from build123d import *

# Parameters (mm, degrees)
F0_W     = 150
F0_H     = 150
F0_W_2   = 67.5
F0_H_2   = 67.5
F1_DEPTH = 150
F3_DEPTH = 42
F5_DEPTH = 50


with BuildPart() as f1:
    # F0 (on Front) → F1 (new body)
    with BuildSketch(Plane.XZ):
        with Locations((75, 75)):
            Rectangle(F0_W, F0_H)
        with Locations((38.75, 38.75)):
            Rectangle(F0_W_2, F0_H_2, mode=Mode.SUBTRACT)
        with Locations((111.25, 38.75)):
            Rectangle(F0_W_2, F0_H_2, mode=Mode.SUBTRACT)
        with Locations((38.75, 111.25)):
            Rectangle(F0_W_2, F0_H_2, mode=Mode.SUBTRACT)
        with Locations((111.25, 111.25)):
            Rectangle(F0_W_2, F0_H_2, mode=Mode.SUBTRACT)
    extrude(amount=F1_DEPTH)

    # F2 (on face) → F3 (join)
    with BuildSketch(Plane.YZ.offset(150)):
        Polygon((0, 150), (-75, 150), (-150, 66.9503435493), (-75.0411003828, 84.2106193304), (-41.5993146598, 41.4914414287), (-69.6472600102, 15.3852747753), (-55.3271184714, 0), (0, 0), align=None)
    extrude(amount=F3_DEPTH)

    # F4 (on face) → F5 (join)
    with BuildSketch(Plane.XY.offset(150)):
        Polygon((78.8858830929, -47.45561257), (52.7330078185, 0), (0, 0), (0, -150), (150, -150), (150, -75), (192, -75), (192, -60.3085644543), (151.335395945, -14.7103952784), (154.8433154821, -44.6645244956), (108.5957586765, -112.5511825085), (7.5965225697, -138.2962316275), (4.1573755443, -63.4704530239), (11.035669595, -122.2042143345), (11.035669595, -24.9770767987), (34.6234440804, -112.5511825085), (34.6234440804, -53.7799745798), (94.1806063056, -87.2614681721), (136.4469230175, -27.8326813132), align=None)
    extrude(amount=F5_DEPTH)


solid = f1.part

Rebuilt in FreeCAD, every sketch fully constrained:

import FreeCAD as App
import Part
import Sketcher
from FreeCAD import Vector
Q = App.Units.Quantity


def add_polygon(sketch, points):
    """Adds a closed chain of lines whose ends are joined by coincident constraints."""
    first, n = sketch.GeometryCount, len(points)
    for a, b in zip(points, points[1:] + points[:1]):
        sketch.addGeometry(Part.LineSegment(App.Vector(*a, 0), App.Vector(*b, 0)), False)
    for i in range(n):
        sketch.addConstraint(Sketcher.Constraint("Coincident", first + i, 2, first + (i + 1) % n, 1))

doc = App.newDocument("Part")
body = doc.addObject("PartDesign::Body", "Body")

# Sketch on XZ plane
sketch1 = body.newObject("Sketcher::SketchObject", "Sketch")
sketch1.AttachmentSupport = (doc.getObject("XZ_Plane"), [""])
sketch1.MapMode = "FlatFace"
add_polygon(sketch1, [(0, 150), (0, 0), (150, 0), (150, 150)])  # lines 0-3
add_polygon(sketch1, [(72, 5), (5, 5), (5, 72), (72, 72)])  # lines 4-7
add_polygon(sketch1, [(145, 5), (78, 5), (78, 72), (145, 72)])  # lines 8-11
add_polygon(sketch1, [(72, 78), (5, 78), (5, 145), (72, 145)])  # lines 12-15
add_polygon(sketch1, [(145, 78), (78, 78), (78, 145), (145, 145)])  # lines 16-19
sketch1.addConstraint(Sketcher.Constraint("Vertical", 0))
sketch1.addConstraint(Sketcher.Constraint("Horizontal", 1))
sketch1.addConstraint(Sketcher.Constraint("Vertical", 2))
sketch1.addConstraint(Sketcher.Constraint("Horizontal", 3))
sketch1.addConstraint(Sketcher.Constraint("Horizontal", 4))
sketch1.addConstraint(Sketcher.Constraint("Vertical", 5))
sketch1.addConstraint(Sketcher.Constraint("Horizontal", 6))
sketch1.addConstraint(Sketcher.Constraint("Vertical", 7))
sketch1.addConstraint(Sketcher.Constraint("Horizontal", 8))
sketch1.addConstraint(Sketcher.Constraint("Vertical", 9))
sketch1.addConstraint(Sketcher.Constraint("Horizontal", 10))
sketch1.addConstraint(Sketcher.Constraint("Vertical", 11))
sketch1.addConstraint(Sketcher.Constraint("Horizontal", 12))
sketch1.addConstraint(Sketcher.Constraint("Vertical", 13))
sketch1.addConstraint(Sketcher.Constraint("Horizontal", 14))
sketch1.addConstraint(Sketcher.Constraint("Vertical", 15))
sketch1.addConstraint(Sketcher.Constraint("Horizontal", 16))
sketch1.addConstraint(Sketcher.Constraint("Vertical", 17))
sketch1.addConstraint(Sketcher.Constraint("Horizontal", 18))
sketch1.addConstraint(Sketcher.Constraint("Vertical", 19))
sketch1.addConstraint(Sketcher.Constraint("Coincident", 0, 2, -1, 1))
sketch1.addConstraint(Sketcher.Constraint("Horizontal", 7, 2, 8, 2))
sketch1.addConstraint(Sketcher.Constraint("Horizontal", 6, 2, 9, 2))
sketch1.addConstraint(Sketcher.Constraint("Horizontal", 15, 2, 16, 2))
sketch1.addConstraint(Sketcher.Constraint("Horizontal", 14, 2, 17, 2))
sketch1.addConstraint(Sketcher.Constraint("Vertical", 5, 2, 12, 2))
sketch1.addConstraint(Sketcher.Constraint("Vertical", 7, 2, 14, 2))
sketch1.addConstraint(Sketcher.Constraint("Vertical", 9, 2, 16, 2))
sketch1.addConstraint(Sketcher.Constraint("Vertical", 11, 2, 18, 2))
sketch1.addConstraint(Sketcher.Constraint("Equal", 6, 8))
sketch1.addConstraint(Sketcher.Constraint("Equal", 3, 0))
sketch1.addConstraint(Sketcher.Constraint("Equal", 18, 5))
sketch1.addConstraint(Sketcher.Constraint("Equal", 11, 13))
sketch1.addConstraint(Sketcher.Constraint("DistanceX", 1, 1, 1, 2, Q("150 mm")))
sketch1.addConstraint(Sketcher.Constraint("DistanceX", 4, 2, 4, 1, Q("67.5 mm")))
sketch1.addConstraint(Sketcher.Constraint("DistanceX", -1, 1, 4, 2, Q("5 mm")))
sketch1.addConstraint(Sketcher.Constraint("DistanceY", -1, 1, 4, 2, Q("5 mm")))
sketch1.addConstraint(Sketcher.Constraint("DistanceX", -1, 1, 10, 2, Q("145 mm")))
sketch1.addConstraint(Sketcher.Constraint("DistanceY", -1, 1, 13, 2, Q("145 mm")))
pad1 = body.newObject("PartDesign::Pad", "Pad")
pad1.Profile = sketch1
pad1.Length = 150

# Sketch on YZ plane
sketch2 = body.newObject("Sketcher::SketchObject", "Sketch001")
sketch2.AttachmentSupport = (doc.getObject("YZ_Plane"), [""])
sketch2.MapMode = "FlatFace"
sketch2.AttachmentOffset = App.Placement(Vector(0, 0, 150), App.Rotation())
add_polygon(sketch2, [(0, 150), (-75, 150), (-150, 67), (-75, 84), (-42, 41), (-70, 15), (-55, 0), (0, 0)])  # lines 0-7
sketch2.addConstraint(Sketcher.Constraint("Horizontal", 0))
sketch2.addConstraint(Sketcher.Constraint("Horizontal", 6))
sketch2.addConstraint(Sketcher.Constraint("Vertical", 7))
sketch2.addConstraint(Sketcher.Constraint("Coincident", 6, 2, -1, 1))
sketch2.addConstraint(Sketcher.Constraint("Perpendicular", 4, 5))
sketch2.addConstraint(Sketcher.Constraint("DistanceX", 0, 2, 0, 1, Q("75 mm")))
sketch2.addConstraint(Sketcher.Constraint("DistanceY", 7, 1, 7, 2, Q("150 mm")))
sketch2.addConstraint(Sketcher.Constraint("DistanceX", 1, 2, -1, 1, Q("150 mm")))
sketch2.addConstraint(Sketcher.Constraint("Distance", 5, Q("21.0184 mm")))
sketch2.addConstraint(Sketcher.Constraint("DistanceX", 6, 1, 6, 2, Q("55.327118 mm")))
sketch2.addConstraint(Sketcher.Constraint("DistanceX", 2, 2, -1, 1, Q("75.0411 mm")))
sketch2.addConstraint(Sketcher.Constraint("Distance", 1, Q("111.902839 mm")))
sketch2.addConstraint(Sketcher.Constraint("Distance", 4, Q("38.317348 mm")))
sketch2.addConstraint(Sketcher.Constraint("DistanceY", -1, 1, 2, 2, Q("84.210619 mm")))
sketch2.addConstraint(Sketcher.Constraint("DistanceY", -1, 1, 3, 2, Q("41.491441 mm")))
pad2 = body.newObject("PartDesign::Pad", "Pad001")
pad2.Profile = sketch2
pad2.Length = 42

# Sketch on XY plane
sketch3 = body.newObject("Sketcher::SketchObject", "Sketch002")
sketch3.AttachmentSupport = (doc.getObject("XY_Plane"), [""])
sketch3.MapMode = "FlatFace"
sketch3.AttachmentOffset = App.Placement(Vector(0, 0, 150), App.Rotation())
add_polygon(sketch3, [(79, -47), (53, 0), (0, 0), (0, -150), (150, -150), (150, -75), (192, -75), (192, -60), (151, -15), (155, -45), (109, -113), (8, -138), (4, -63), (11, -122), (11, -25), (35, -113), (35, -54), (94, -87), (136, -28)])  # lines 0-18
sketch3.addConstraint(Sketcher.Constraint("Horizontal", 1))
sketch3.addConstraint(Sketcher.Constraint("Vertical", 2))
sketch3.addConstraint(Sketcher.Constraint("Horizontal", 3))
sketch3.addConstraint(Sketcher.Constraint("Vertical", 4))
sketch3.addConstraint(Sketcher.Constraint("Horizontal", 5))
sketch3.addConstraint(Sketcher.Constraint("Vertical", 6))
sketch3.addConstraint(Sketcher.Constraint("Vertical", 13))
sketch3.addConstraint(Sketcher.Constraint("Vertical", 15))
sketch3.addConstraint(Sketcher.Constraint("Coincident", 1, 2, -1, 1))
sketch3.addConstraint(Sketcher.Constraint("Parallel", 8, 12))
sketch3.addConstraint(Sketcher.Constraint("Horizontal", 9, 2, 14, 2))
sketch3.addConstraint(Sketcher.Constraint("Equal", 3, 2))
sketch3.addConstraint(Sketcher.Constraint("DistanceX", 3, 1, 3, 2, Q("150 mm")))
sketch3.addConstraint(Sketcher.Constraint("DistanceX", 5, 1, 5, 2, Q("42 mm")))
sketch3.addConstraint(Sketcher.Constraint("DistanceY", 4, 1, 4, 2, Q("75 mm")))
sketch3.addConstraint(Sketcher.Constraint("Distance", 7, Q("61.09667 mm")))
sketch3.addConstraint(Sketcher.Constraint("Distance", 9, Q("82.142771 mm")))
sketch3.addConstraint(Sketcher.Constraint("Distance", 10, Q("104.22885 mm")))
sketch3.addConstraint(Sketcher.Constraint("Distance", 18, Q("60.813919 mm")))
sketch3.addConstraint(Sketcher.Constraint("DistanceX", 1, 2, 1, 1, Q("52.733008 mm")))
sketch3.addConstraint(Sketcher.Constraint("DistanceY", 6, 1, 6, 2, Q("14.691436 mm")))
sketch3.addConstraint(Sketcher.Constraint("DistanceY", 13, 1, 13, 2, Q("97.227138 mm")))
sketch3.addConstraint(Sketcher.Constraint("DistanceY", 15, 1, 15, 2, Q("58.771208 mm")))
sketch3.addConstraint(Sketcher.Constraint("DistanceX", -1, 1, 9, 2, Q("108.595759 mm")))
sketch3.addConstraint(Sketcher.Constraint("DistanceY", 10, 2, -1, 1, Q("138.296232 mm")))
sketch3.addConstraint(Sketcher.Constraint("DistanceX", -1, 1, 12, 2, Q("11.03567 mm")))
sketch3.addConstraint(Sketcher.Constraint("DistanceY", 16, 2, -1, 1, Q("87.261468 mm")))
sketch3.addConstraint(Sketcher.Constraint("DistanceY", 17, 2, -1, 1, Q("27.832681 mm")))
sketch3.addConstraint(Sketcher.Constraint("DistanceY", 6, 2, 7, 2, Q("45.598169 mm")))
sketch3.addConstraint(Sketcher.Constraint("DistanceX", 7, 2, 8, 2, Q("3.50792 mm")))
sketch3.addConstraint(Sketcher.Constraint("DistanceY", 8, 2, 7, 2, Q("29.954129 mm")))
sketch3.addConstraint(Sketcher.Constraint("DistanceY", 10, 2, 11, 2, Q("74.825779 mm")))
sketch3.addConstraint(Sketcher.Constraint("DistanceY", 12, 2, 11, 2, Q("58.733761 mm")))
sketch3.addConstraint(Sketcher.Constraint("DistanceX", 10, 2, 14, 2, Q("27.026922 mm")))
sketch3.addConstraint(Sketcher.Constraint("DistanceX", 16, 2, 8, 2, Q("60.662709 mm")))
sketch3.addConstraint(Sketcher.Constraint("DistanceX", 15, 2, 18, 2, Q("44.262439 mm")))
sketch3.addConstraint(Sketcher.Constraint("DistanceX", 18, 2, 17, 2, Q("57.56104 mm")))
pad3 = body.newObject("PartDesign::Pad", "Pad002")
pad3.Profile = sketch3
pad3.Length = 50

doc.recompute()
